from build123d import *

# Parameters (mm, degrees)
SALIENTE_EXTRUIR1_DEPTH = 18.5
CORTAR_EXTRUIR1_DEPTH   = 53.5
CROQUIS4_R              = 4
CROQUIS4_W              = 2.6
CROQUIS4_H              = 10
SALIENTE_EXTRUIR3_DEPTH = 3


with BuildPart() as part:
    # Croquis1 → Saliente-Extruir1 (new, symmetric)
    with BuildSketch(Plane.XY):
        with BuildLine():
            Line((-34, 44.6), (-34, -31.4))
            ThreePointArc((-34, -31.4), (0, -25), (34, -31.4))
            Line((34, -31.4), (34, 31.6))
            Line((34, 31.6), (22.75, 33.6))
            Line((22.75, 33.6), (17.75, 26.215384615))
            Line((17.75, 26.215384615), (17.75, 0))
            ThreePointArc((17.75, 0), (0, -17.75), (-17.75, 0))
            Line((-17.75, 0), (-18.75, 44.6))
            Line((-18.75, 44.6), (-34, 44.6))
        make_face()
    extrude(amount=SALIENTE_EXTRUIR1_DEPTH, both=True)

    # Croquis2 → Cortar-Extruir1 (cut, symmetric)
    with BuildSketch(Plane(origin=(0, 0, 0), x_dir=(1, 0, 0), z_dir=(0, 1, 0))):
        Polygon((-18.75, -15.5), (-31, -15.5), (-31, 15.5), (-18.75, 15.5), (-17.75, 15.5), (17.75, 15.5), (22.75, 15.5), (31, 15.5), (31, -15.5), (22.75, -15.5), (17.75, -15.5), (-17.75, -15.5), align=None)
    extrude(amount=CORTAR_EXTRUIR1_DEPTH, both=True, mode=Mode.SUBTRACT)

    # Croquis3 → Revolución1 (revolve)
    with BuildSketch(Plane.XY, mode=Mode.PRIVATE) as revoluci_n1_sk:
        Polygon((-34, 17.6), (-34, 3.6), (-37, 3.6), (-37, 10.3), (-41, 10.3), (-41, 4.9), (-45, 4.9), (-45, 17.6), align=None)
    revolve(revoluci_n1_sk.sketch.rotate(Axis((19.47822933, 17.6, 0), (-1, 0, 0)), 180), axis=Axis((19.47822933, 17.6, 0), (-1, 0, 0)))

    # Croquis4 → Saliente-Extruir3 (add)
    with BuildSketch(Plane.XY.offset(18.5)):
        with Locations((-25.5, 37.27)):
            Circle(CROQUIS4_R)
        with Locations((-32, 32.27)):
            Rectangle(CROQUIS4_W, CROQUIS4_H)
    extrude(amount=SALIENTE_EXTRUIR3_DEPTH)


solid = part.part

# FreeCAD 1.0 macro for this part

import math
import FreeCAD as App
import Part
import Sketcher
from FreeCAD import Vector
Q = App.Units.Quantity


def add_polygon(sketch, points):
    """Adds a closed chain of lines whose ends are joined by coincident constraints."""
    first, n = sketch.GeometryCount, len(points)
    for a, b in zip(points, points[1:] + points[:1]):
        sketch.addGeometry(Part.LineSegment(App.Vector(*a, 0), App.Vector(*b, 0)), False)
    for i in range(n):
        sketch.addConstraint(Sketcher.Constraint("Coincident", first + i, 2, first + (i + 1) % n, 1))

doc = App.newDocument("Part")
body = doc.addObject("PartDesign::Body", "Body")

# Sketch on XY plane
sketch1 = body.newObject("Sketcher::SketchObject", "Sketch")
sketch1.AttachmentSupport = (doc.getObject("XY_Plane"), [""])
sketch1.MapMode = "FlatFace"
sketch1.addGeometry([
    Part.LineSegment(Vector(-34, 45, 0), Vector(-34, -31, 0)),  # 0
    Part.ArcOfCircle(Part.Circle(Vector(0, -119, 0), Vector(0, 0, 1), 94), math.radians(69), math.radians(111)),  # 1
    Part.LineSegment(Vector(34, -31, 0), Vector(34, 32, 0)),  # 2
    Part.LineSegment(Vector(34, 32, 0), Vector(23, 34, 0)),  # 3
    Part.LineSegment(Vector(23, 34, 0), Vector(18, 26, 0)),  # 4
    Part.LineSegment(Vector(18, 26, 0), Vector(18, 0, 0)),  # 5
    Part.ArcOfCircle(Part.Circle(Vector(0, 0, 0), Vector(0, 0, 1), 18), math.radians(180), math.radians(360)),  # 6
    Part.LineSegment(Vector(-18, 0, 0), Vector(-19, 45, 0)),  # 7
    Part.LineSegment(Vector(-19, 45, 0), Vector(-34, 45, 0)),  # 8
], False)
sketch1.addConstraint([
    Sketcher.Constraint("Coincident", 0, 2, 1, 2),
    Sketcher.Constraint("Coincident", 1, 1, 2, 1),
    Sketcher.Constraint("Coincident", 2, 2, 3, 1),
    Sketcher.Constraint("Coincident", 3, 2, 4, 1),
    Sketcher.Constraint("Coincident", 4, 2, 5, 1),
    Sketcher.Constraint("Tangent", 5, 2, 6, 2),
    Sketcher.Constraint("Coincident", 6, 1, 7, 1),
    Sketcher.Constraint("Coincident", 7, 2, 8, 1),
    Sketcher.Constraint("Coincident", 8, 2, 0, 1),
    Sketcher.Constraint("Vertical", 0),
    Sketcher.Constraint("Vertical", 2),
    Sketcher.Constraint("Vertical", 5),
    Sketcher.Constraint("Horizontal", 8),
    Sketcher.Constraint("Coincident", 6, 3, -1, 1),
    Sketcher.Constraint("Symmetric", 0, 2, 1, 1, -2),
    Sketcher.Constraint("PointOnObject", 6, 1, -1),
    Sketcher.Constraint("DistanceY", 0, 2, 0, 1, Q("76 mm")),
    Sketcher.Constraint("DistanceY", 2, 1, 2, 2, Q("63 mm")),
    Sketcher.Constraint("Radius", 6, Q("17.75 mm")),
    Sketcher.Constraint("DistanceX", 0, 2, -1, 1, Q("34 mm")),
    Sketcher.Constraint("DistanceY", 2, 2, 3, 2, Q("2 mm")),
    Sketcher.Constraint("DistanceX", 4, 2, 3, 2, Q("5 mm")),
    Sketcher.Constraint("DistanceX", 7, 2, 6, 1, Q("1 mm")),
    Sketcher.Constraint("DistanceY", 0, 2, -1, 1, Q("31.4 mm")),
    Sketcher.Constraint("Radius", 1, Q("93.5125 mm")),
    Sketcher.Constraint("DistanceY", 5, 2, 5, 1, Q("26.215385 mm")),
])
pad1 = body.newObject("PartDesign::Pad", "Pad")
pad1.Profile = sketch1
pad1.Length = 37
pad1.Midplane = True

# Sketch on XZ plane
sketch2 = body.newObject("Sketcher::SketchObject", "Sketch001")
sketch2.AttachmentSupport = (doc.getObject("XZ_Plane"), [""])
sketch2.MapMode = "FlatFace"
add_polygon(sketch2, [(-31, 16), (31, 16), (31, -16), (-31, -16)])  # lines 0-3
sketch2.addConstraint([
    Sketcher.Constraint("Horizontal", 0),
    Sketcher.Constraint("Vertical", 1),
    Sketcher.Constraint("Horizontal", 2),
    Sketcher.Constraint("Vertical", 3),
    Sketcher.Constraint("Symmetric", 0, 2, 2, 2, -1, 1),
    Sketcher.Constraint("DistanceX", 0, 1, 0, 2, Q("62 mm")),
    Sketcher.Constraint("DistanceY", 1, 2, 1, 1, Q("31 mm")),
])
pocket1 = body.newObject("PartDesign::Pocket", "Pocket")
pocket1.Profile = sketch2
pocket1.Length = 107
pocket1.Midplane = True

# Sketch on XY plane
sketch3 = body.newObject("Sketcher::SketchObject", "Sketch002")
sketch3.AttachmentSupport = (doc.getObject("XY_Plane"), [""])
sketch3.MapMode = "FlatFace"
add_polygon(sketch3, [(-34, 3.6), (-34, 17.6), (-45, 17.6), (-45, 4.9), (-41, 4.9), (-41, 10.3), (-37, 10.3), (-37, 3.6)])  # lines 0-7
sketch3.addGeometry(Part.LineSegment(Vector(-34, 17.6, 0), Vector(-45, 17.6, 0)), True)  # axis
sketch3.addConstraint([
    Sketcher.Constraint("Vertical", 0),
    Sketcher.Constraint("Horizontal", 1),
    Sketcher.Constraint("Vertical", 2),
    Sketcher.Constraint("Horizontal", 3),
    Sketcher.Constraint("Vertical", 4),
    Sketcher.Constraint("Horizontal", 5),
    Sketcher.Constraint("Vertical", 6),
    Sketcher.Constraint("Horizontal", 7),
    Sketcher.Constraint("Horizontal", 8),
    Sketcher.Constraint("Coincident", 8, 1, 0, 2),
    Sketcher.Constraint("Vertical", 2, 2, 8, 2),
    Sketcher.Constraint("Equal", 3, 5),
    Sketcher.Constraint("DistanceX", 1, 2, 1, 1, Q("11 mm")),
    Sketcher.Constraint("DistanceX", 3, 1, 3, 2, Q("4 mm")),
    Sketcher.Constraint("DistanceY", 0, 1, 0, 2, Q("14 mm")),
    Sketcher.Constraint("DistanceY", 2, 2, 2, 1, Q("12.7 mm")),
    Sketcher.Constraint("DistanceY", 4, 1, 4, 2, Q("5.4 mm")),
    Sketcher.Constraint("DistanceX", 0, 2, -1, 1, Q("34 mm")),
    Sketcher.Constraint("DistanceY", -1, 1, 0, 2, Q("17.6 mm")),
])
revolution = body.newObject("PartDesign::Revolution", "Revolution")
revolution.Profile = sketch3
revolution.ReferenceAxis = (sketch3, ["Axis0"])
revolution.Angle = 360

# Sketch on XY plane
sketch4 = body.newObject("Sketcher::SketchObject", "Sketch003")
sketch4.AttachmentSupport = (doc.getObject("XY_Plane"), [""])
sketch4.MapMode = "FlatFace"
sketch4.AttachmentOffset = App.Placement(Vector(0, 0, 18.5), App.Rotation())
sketch4.addGeometry(Part.Circle(Vector(-25.5, 37.3, 0), Vector(0, 0, 1), 4), False)  # 0
add_polygon(sketch4, [(-33.3, 37.3), (-33.3, 27.3), (-30.7, 27.3), (-30.7, 37.3)])  # lines 1-4
sketch4.addConstraint([
    Sketcher.Constraint("Vertical", 1),
    Sketcher.Constraint("Horizontal", 2),
    Sketcher.Constraint("Vertical", 3),
    Sketcher.Constraint("Horizontal", 4),
    Sketcher.Constraint("Horizontal", 0, 3, 3, 2),
    Sketcher.Constraint("Diameter", 0, Q("8 mm")),
    Sketcher.Constraint("DistanceY", 1, 2, 1, 1, Q("10 mm")),
    Sketcher.Constraint("DistanceX", 2, 1, 2, 2, Q("2.6 mm")),
    Sketcher.Constraint("DistanceX", 0, 3, -1, 1, Q("25.5 mm")),
    Sketcher.Constraint("DistanceX", 1, 2, -1, 1, Q("33.3 mm")),
    Sketcher.Constraint("DistanceY", -1, 1, 0, 3, Q("37.27 mm")),
])
pad2 = body.newObject("PartDesign::Pad", "Pad001")
pad2.Profile = sketch4
pad2.Length = 3

doc.recompute()
